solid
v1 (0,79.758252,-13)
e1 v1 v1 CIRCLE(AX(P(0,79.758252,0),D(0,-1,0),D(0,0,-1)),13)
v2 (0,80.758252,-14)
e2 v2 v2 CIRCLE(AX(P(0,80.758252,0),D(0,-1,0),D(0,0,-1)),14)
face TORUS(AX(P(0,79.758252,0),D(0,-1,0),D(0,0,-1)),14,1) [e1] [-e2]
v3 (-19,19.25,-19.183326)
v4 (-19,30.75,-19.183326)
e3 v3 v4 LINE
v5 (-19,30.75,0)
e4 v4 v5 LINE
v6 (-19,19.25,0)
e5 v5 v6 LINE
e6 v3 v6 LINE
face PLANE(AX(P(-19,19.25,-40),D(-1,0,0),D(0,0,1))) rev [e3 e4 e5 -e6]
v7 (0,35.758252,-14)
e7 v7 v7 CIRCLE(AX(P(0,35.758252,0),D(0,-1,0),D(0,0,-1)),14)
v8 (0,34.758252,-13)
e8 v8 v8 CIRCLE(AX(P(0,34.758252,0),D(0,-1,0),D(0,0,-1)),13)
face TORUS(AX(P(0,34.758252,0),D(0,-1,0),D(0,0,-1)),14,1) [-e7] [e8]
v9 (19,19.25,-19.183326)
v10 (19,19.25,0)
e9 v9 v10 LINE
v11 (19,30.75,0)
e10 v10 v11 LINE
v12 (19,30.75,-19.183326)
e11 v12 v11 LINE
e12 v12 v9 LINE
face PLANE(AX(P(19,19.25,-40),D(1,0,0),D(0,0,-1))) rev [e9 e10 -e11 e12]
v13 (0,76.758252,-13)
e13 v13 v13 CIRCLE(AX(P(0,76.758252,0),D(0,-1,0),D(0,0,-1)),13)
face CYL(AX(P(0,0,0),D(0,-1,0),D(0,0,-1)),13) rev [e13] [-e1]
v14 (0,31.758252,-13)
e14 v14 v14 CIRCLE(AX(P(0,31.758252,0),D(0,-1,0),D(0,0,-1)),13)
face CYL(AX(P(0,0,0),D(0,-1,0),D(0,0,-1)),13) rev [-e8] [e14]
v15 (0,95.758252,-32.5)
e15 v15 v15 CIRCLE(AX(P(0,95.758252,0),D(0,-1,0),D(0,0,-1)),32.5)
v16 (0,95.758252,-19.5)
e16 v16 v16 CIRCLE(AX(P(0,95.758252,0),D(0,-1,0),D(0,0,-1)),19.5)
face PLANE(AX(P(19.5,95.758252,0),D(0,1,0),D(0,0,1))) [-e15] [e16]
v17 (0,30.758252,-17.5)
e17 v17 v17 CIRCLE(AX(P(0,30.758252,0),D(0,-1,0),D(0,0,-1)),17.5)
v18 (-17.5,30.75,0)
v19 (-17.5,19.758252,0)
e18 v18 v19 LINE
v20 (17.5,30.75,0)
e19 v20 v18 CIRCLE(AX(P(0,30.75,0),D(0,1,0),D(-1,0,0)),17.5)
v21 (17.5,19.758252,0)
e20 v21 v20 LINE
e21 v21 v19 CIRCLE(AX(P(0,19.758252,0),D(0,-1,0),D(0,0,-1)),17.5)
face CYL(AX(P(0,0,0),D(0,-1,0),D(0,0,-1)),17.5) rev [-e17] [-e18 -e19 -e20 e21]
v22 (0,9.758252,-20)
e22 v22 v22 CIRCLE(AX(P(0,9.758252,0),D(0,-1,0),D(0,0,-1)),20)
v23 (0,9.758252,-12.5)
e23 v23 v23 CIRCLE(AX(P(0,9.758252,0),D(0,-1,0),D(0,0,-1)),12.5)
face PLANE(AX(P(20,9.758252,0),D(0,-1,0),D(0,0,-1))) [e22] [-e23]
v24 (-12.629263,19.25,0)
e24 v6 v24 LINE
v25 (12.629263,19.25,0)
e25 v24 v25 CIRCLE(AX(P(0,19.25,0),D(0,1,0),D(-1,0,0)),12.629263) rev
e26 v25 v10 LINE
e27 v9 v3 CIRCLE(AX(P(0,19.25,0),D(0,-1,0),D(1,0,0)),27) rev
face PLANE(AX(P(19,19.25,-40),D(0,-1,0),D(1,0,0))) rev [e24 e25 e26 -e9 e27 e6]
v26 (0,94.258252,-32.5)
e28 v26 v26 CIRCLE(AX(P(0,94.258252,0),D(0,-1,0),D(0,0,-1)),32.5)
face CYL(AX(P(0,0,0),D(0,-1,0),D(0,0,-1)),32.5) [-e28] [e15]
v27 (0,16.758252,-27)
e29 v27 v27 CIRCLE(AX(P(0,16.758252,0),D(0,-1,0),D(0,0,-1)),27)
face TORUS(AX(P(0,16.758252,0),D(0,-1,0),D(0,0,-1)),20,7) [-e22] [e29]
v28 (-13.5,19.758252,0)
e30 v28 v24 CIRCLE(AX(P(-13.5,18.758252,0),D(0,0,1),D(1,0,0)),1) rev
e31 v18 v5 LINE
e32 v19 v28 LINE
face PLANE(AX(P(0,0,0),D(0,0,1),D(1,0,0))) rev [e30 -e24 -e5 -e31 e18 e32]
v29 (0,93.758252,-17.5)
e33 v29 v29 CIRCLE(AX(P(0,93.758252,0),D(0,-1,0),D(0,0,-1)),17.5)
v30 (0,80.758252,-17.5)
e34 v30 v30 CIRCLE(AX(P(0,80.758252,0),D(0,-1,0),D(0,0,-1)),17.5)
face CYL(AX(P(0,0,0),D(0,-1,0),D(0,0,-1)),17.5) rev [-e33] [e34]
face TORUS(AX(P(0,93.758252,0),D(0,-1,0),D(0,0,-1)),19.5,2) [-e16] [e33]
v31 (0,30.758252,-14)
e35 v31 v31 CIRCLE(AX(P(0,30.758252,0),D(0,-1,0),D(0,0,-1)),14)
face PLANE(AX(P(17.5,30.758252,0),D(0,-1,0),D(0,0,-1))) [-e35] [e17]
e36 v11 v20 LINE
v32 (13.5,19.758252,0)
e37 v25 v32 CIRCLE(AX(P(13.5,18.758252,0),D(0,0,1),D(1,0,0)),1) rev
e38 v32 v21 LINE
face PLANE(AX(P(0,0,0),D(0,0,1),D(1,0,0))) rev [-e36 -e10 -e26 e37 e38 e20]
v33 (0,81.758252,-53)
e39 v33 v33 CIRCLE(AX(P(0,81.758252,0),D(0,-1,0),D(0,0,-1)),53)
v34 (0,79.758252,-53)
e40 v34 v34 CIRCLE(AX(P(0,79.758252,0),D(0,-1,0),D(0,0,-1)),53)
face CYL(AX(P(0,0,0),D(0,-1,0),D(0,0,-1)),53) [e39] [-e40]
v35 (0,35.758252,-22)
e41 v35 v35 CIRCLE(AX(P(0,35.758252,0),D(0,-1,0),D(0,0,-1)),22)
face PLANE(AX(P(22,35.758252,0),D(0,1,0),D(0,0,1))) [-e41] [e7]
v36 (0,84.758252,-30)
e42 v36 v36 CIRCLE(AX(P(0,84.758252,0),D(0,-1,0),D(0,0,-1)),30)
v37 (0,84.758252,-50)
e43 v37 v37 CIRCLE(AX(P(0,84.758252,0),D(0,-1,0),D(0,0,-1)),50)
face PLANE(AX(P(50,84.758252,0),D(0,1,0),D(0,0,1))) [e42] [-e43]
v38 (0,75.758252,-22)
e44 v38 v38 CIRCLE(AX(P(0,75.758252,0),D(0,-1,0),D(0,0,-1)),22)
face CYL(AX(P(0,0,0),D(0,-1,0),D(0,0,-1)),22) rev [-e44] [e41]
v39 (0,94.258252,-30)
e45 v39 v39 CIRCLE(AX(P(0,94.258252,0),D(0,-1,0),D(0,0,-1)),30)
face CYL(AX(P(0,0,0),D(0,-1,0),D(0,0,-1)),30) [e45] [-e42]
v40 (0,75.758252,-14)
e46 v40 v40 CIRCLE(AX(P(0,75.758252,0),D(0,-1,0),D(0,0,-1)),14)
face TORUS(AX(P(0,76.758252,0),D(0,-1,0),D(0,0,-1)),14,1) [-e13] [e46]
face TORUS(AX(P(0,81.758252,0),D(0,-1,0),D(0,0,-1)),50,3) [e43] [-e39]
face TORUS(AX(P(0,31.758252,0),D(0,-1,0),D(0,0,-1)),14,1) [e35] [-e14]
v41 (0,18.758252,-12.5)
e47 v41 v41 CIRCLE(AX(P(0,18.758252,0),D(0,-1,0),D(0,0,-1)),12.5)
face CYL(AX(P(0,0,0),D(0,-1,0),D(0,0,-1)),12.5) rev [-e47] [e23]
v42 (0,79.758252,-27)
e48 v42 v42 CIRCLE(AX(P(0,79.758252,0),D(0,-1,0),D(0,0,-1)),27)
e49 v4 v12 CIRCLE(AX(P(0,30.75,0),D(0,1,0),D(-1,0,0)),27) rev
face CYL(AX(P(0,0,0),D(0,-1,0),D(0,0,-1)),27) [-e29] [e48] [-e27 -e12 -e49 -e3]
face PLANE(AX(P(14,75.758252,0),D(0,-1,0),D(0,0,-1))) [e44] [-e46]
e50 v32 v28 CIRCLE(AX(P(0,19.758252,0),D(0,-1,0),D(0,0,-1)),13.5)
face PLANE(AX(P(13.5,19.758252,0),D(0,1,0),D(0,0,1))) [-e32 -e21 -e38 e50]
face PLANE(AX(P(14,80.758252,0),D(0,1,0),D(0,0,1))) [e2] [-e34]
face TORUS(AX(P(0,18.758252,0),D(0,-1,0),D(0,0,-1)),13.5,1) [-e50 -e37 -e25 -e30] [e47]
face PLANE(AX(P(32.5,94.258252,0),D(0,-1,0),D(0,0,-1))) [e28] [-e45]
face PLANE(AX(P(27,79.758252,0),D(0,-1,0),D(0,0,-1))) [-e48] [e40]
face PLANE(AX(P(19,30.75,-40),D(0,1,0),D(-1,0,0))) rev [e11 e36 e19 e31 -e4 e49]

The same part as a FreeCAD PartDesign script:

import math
import FreeCAD as App
import Part
import Sketcher
from FreeCAD import Vector

doc = App.newDocument("Part")
body = doc.addObject("PartDesign::Body", "Body")

# Sketch on XY plane
sketch1 = body.newObject("Sketcher::SketchObject", "Sketch")
sketch1.AttachmentSupport = (doc.getObject("XY_Plane"), [""])
sketch1.MapMode = "FlatFace"
sketch1.addGeometry(Part.LineSegment(Vector(32.5, 95.8, 0), Vector(19.5, 95.8, 0)), False)
sketch1.addGeometry(Part.ArcOfCircle(Part.Circle(Vector(19.5, 93.8, 0), Vector(0, 0, 1), 2), math.radians(90), math.radians(180)), False)
sketch1.addGeometry(Part.LineSegment(Vector(17.5, 93.8, 0), Vector(17.5, 80.8, 0)), False)
sketch1.addGeometry(Part.LineSegment(Vector(17.5, 80.8, 0), Vector(14, 80.8, 0)), False)
sketch1.addGeometry(Part.ArcOfCircle(Part.Circle(Vector(14, 79.8, 0), Vector(0, 0, 1), 1), math.radians(90), math.radians(180)), False)
sketch1.addGeometry(Part.LineSegment(Vector(13, 79.8, 0), Vector(13, 76.8, 0)), False)
sketch1.addGeometry(Part.ArcOfCircle(Part.Circle(Vector(14, 76.8, 0), Vector(0, 0, 1), 1), math.radians(-180), math.radians(-90)), False)
sketch1.addGeometry(Part.LineSegment(Vector(14, 75.8, 0), Vector(22, 75.8, 0)), False)
sketch1.addGeometry(Part.LineSegment(Vector(22, 75.8, 0), Vector(22, 35.8, 0)), False)
sketch1.addGeometry(Part.LineSegment(Vector(22, 35.8, 0), Vector(14, 35.8, 0)), False)
sketch1.addGeometry(Part.ArcOfCircle(Part.Circle(Vector(14, 34.8, 0), Vector(0, 0, 1), 1), math.radians(90), math.radians(180)), False)
sketch1.addGeometry(Part.LineSegment(Vector(13, 34.8, 0), Vector(13, 31.8, 0)), False)
sketch1.addGeometry(Part.ArcOfCircle(Part.Circle(Vector(14, 31.8, 0), Vector(0, 0, 1), 1), math.radians(-180), math.radians(-90)), False)
sketch1.addGeometry(Part.LineSegment(Vector(14, 30.8, 0), Vector(17.5, 30.8, 0)), False)
sketch1.addGeometry(Part.LineSegment(Vector(17.5, 30.8, 0), Vector(17.5, 19.8, 0)), False)
sketch1.addGeometry(Part.LineSegment(Vector(17.5, 19.8, 0), Vector(13.5, 19.8, 0)), False)
sketch1.addGeometry(Part.ArcOfCircle(Part.Circle(Vector(13.5, 18.8, 0), Vector(0, 0, 1), 1), math.radians(90), math.radians(180)), False)
sketch1.addGeometry(Part.LineSegment(Vector(12.5, 18.8, 0), Vector(12.5, 9.8, 0)), False)
sketch1.addGeometry(Part.LineSegment(Vector(12.5, 9.8, 0), Vector(20, 9.8, 0)), False)
sketch1.addGeometry(Part.ArcOfCircle(Part.Circle(Vector(20, 16.8, 0), Vector(0, 0, 1), 7), math.radians(-90), math.radians(0)), False)
sketch1.addGeometry(Part.LineSegment(Vector(27, 16.8, 0), Vector(27, 79.8, 0)), False)
sketch1.addGeometry(Part.LineSegment(Vector(27, 79.8, 0), Vector(53, 79.8, 0)), False)
sketch1.addGeometry(Part.LineSegment(Vector(53, 79.8, 0), Vector(53, 81.8, 0)), False)
sketch1.addGeometry(Part.ArcOfCircle(Part.Circle(Vector(50, 81.8, 0), Vector(0, 0, 1), 3), math.radians(0), math.radians(90)), False)
sketch1.addGeometry(Part.LineSegment(Vector(50, 84.8, 0), Vector(30, 84.8, 0)), False)
sketch1.addGeometry(Part.LineSegment(Vector(30, 84.8, 0), Vector(30, 94.3, 0)), False)
sketch1.addGeometry(Part.LineSegment(Vector(30, 94.3, 0), Vector(32.5, 94.3, 0)), False)
sketch1.addGeometry(Part.LineSegment(Vector(32.5, 94.3, 0), Vector(32.5, 95.8, 0)), False)
sketch1.addConstraint(Sketcher.Constraint("Tangent", 0, 2, 1, 1))
sketch1.addConstraint(Sketcher.Constraint("Tangent", 1, 2, 2, 1))
sketch1.addConstraint(Sketcher.Constraint("Coincident", 2, 2, 3, 1))
sketch1.addConstraint(Sketcher.Constraint("Tangent", 3, 2, 4, 1))
sketch1.addConstraint(Sketcher.Constraint("Tangent", 4, 2, 5, 1))
sketch1.addConstraint(Sketcher.Constraint("Tangent", 5, 2, 6, 1))
sketch1.addConstraint(Sketcher.Constraint("Tangent", 6, 2, 7, 1))
sketch1.addConstraint(Sketcher.Constraint("Coincident", 7, 2, 8, 1))
sketch1.addConstraint(Sketcher.Constraint("Coincident", 8, 2, 9, 1))
sketch1.addConstraint(Sketcher.Constraint("Tangent", 9, 2, 10, 1))
sketch1.addConstraint(Sketcher.Constraint("Tangent", 10, 2, 11, 1))
sketch1.addConstraint(Sketcher.Constraint("Tangent", 11, 2, 12, 1))
sketch1.addConstraint(Sketcher.Constraint("Tangent", 12, 2, 13, 1))
sketch1.addConstraint(Sketcher.Constraint("Coincident", 13, 2, 14, 1))
sketch1.addConstraint(Sketcher.Constraint("Coincident", 14, 2, 15, 1))
sketch1.addConstraint(Sketcher.Constraint("Tangent", 15, 2, 16, 1))
sketch1.addConstraint(Sketcher.Constraint("Tangent", 16, 2, 17, 1))
sketch1.addConstraint(Sketcher.Constraint("Coincident", 17, 2, 18, 1))
sketch1.addConstraint(Sketcher.Constraint("Tangent", 18, 2, 19, 1))
sketch1.addConstraint(Sketcher.Constraint("Tangent", 19, 2, 20, 1))
sketch1.addConstraint(Sketcher.Constraint("Coincident", 20, 2, 21, 1))
sketch1.addConstraint(Sketcher.Constraint("Coincident", 21, 2, 22, 1))
sketch1.addConstraint(Sketcher.Constraint("Tangent", 22, 2, 23, 1))
sketch1.addConstraint(Sketcher.Constraint("Tangent", 23, 2, 24, 1))
sketch1.addConstraint(Sketcher.Constraint("Coincident", 24, 2, 25, 1))
sketch1.addConstraint(Sketcher.Constraint("Coincident", 25, 2, 26, 1))
sketch1.addConstraint(Sketcher.Constraint("Coincident", 26, 2, 27, 1))
sketch1.addConstraint(Sketcher.Constraint("Coincident", 27, 2, 0, 1))
sketch1.addConstraint(Sketcher.Constraint("Horizontal", 0))
sketch1.addConstraint(Sketcher.Constraint("Vertical", 2))
sketch1.addConstraint(Sketcher.Constraint("Horizontal", 3))
sketch1.addConstraint(Sketcher.Constraint("Vertical", 5))
sketch1.addConstraint(Sketcher.Constraint("Horizontal", 7))
sketch1.addConstraint(Sketcher.Constraint("Vertical", 8))
sketch1.addConstraint(Sketcher.Constraint("Horizontal", 9))
sketch1.addConstraint(Sketcher.Constraint("Vertical", 11))
sketch1.addConstraint(Sketcher.Constraint("Horizontal", 13))
sketch1.addConstraint(Sketcher.Constraint("Vertical", 14))
sketch1.addConstraint(Sketcher.Constraint("Horizontal", 15))
sketch1.addConstraint(Sketcher.Constraint("Vertical", 17))
sketch1.addConstraint(Sketcher.Constraint("Horizontal", 18))
sketch1.addConstraint(Sketcher.Constraint("Vertical", 20))
sketch1.addConstraint(Sketcher.Constraint("Horizontal", 21))
sketch1.addConstraint(Sketcher.Constraint("Vertical", 22))
sketch1.addConstraint(Sketcher.Constraint("Horizontal", 24))
sketch1.addConstraint(Sketcher.Constraint("Vertical", 25))
sketch1.addConstraint(Sketcher.Constraint("Horizontal", 26))
sketch1.addConstraint(Sketcher.Constraint("Vertical", 27))
sketch1.addConstraint(Sketcher.Constraint("Equal", 4, 6))
sketch1.addConstraint(Sketcher.Constraint("Equal", 6, 10))
sketch1.addConstraint(Sketcher.Constraint("Equal", 10, 12))
sketch1.addConstraint(Sketcher.Constraint("Equal", 12, 16))
sketch1.addConstraint(Sketcher.Constraint("Horizontal", 4, 2, 20, 2))
sketch1.addConstraint(Sketcher.Constraint("Vertical", 6, 3, 10, 3))
sketch1.addConstraint(Sketcher.Constraint("Vertical", 2, 2, 13, 2))
sketch1.addConstraint(Sketcher.Constraint("Equal", 0, 2))
sketch1.addConstraint(Sketcher.Constraint("Equal", 5, 11))
sketch1.addConstraint(Sketcher.Constraint("Radius", 1, 2.0))
sketch1.addConstraint(Sketcher.Constraint("Radius", 4, 1.0))
sketch1.addConstraint(Sketcher.Constraint("Radius", 19, 7.0))
sketch1.addConstraint(Sketcher.Constraint("Radius", 23, 3.0))
sketch1.addConstraint(Sketcher.Constraint("DistanceX", 0, 2, 0, 1, 13.0))
sketch1.addConstraint(Sketcher.Constraint("DistanceX", 7, 1, 7, 2, 8.0))
sketch1.addConstraint(Sketcher.Constraint("DistanceX", 15, 2, 15, 1, 4.0))
sketch1.addConstraint(Sketcher.Constraint("DistanceX", 21, 1, 21, 2, 26.0))
sketch1.addConstraint(Sketcher.Constraint("DistanceX", 24, 2, 24, 1, 20.0))
sketch1.addConstraint(Sketcher.Constraint("DistanceY", 5, 2, 5, 1, 3.0))
sketch1.addConstraint(Sketcher.Constraint("DistanceY", 8, 2, 8, 1, 40.0))
sketch1.addConstraint(Sketcher.Constraint("DistanceY", 14, 2, 14, 1, 11.0))
sketch1.addConstraint(Sketcher.Constraint("DistanceY", 17, 2, 17, 1, 9.0))
sketch1.addConstraint(Sketcher.Constraint("DistanceY", 22, 1, 22, 2, 2.0))
sketch1.addConstraint(Sketcher.Constraint("DistanceX", 3, 2, 3, 1, 3.5))
sketch1.addConstraint(Sketcher.Constraint("DistanceX", 18, 1, 18, 2, 7.5))
sketch1.addConstraint(Sketcher.Constraint("DistanceY", 25, 1, 25, 2, 9.5))
sketch1.addConstraint(Sketcher.Constraint("DistanceX", -1, 1, 4, 3, 14.0))
sketch1.addConstraint(Sketcher.Constraint("DistanceY", -1, 1, 1, 3, 93.758252))
revolution = body.newObject("PartDesign::Revolution", "Revolution")
revolution.Profile = sketch1
revolution.ReferenceAxis = (sketch1, ["V_Axis"])
revolution.Angle = 360

# Sketch on XY plane
sketch2 = body.newObject("Sketcher::SketchObject", "Sketch001")
sketch2.AttachmentSupport = (doc.getObject("XY_Plane"), [""])
sketch2.MapMode = "FlatFace"
sketch2.addGeometry(Part.LineSegment(Vector(-19, 31, 0), Vector(-19, 19, 0)), False)
sketch2.addGeometry(Part.LineSegment(Vector(-19, 19, 0), Vector(19, 19, 0)), False)
sketch2.addGeometry(Part.LineSegment(Vector(19, 19, 0), Vector(19, 31, 0)), False)
sketch2.addGeometry(Part.LineSegment(Vector(19, 31, 0), Vector(-19, 31, 0)), False)
sketch2.addConstraint(Sketcher.Constraint("Coincident", 0, 2, 1, 1))
sketch2.addConstraint(Sketcher.Constraint("Coincident", 1, 2, 2, 1))
sketch2.addConstraint(Sketcher.Constraint("Coincident", 2, 2, 3, 1))
sketch2.addConstraint(Sketcher.Constraint("Coincident", 3, 2, 0, 1))
sketch2.addConstraint(Sketcher.Constraint("Vertical", 0))
sketch2.addConstraint(Sketcher.Constraint("Horizontal", 1))
sketch2.addConstraint(Sketcher.Constraint("Vertical", 2))
sketch2.addConstraint(Sketcher.Constraint("Horizontal", 3))
sketch2.addConstraint(Sketcher.Constraint("DistanceX", 1, 1, 1, 2, 38.0))
sketch2.addConstraint(Sketcher.Constraint("DistanceY", 0, 2, 0, 1, 11.5))
sketch2.addConstraint(Sketcher.Constraint("DistanceX", 0, 2, -1, 1, 19.0))
sketch2.addConstraint(Sketcher.Constraint("DistanceY", -1, 1, 0, 2, 19.25))
pocket1 = body.newObject("PartDesign::Pocket", "Pocket")
pocket1.Profile = sketch2
pocket1.Length = 40

doc.recompute()
